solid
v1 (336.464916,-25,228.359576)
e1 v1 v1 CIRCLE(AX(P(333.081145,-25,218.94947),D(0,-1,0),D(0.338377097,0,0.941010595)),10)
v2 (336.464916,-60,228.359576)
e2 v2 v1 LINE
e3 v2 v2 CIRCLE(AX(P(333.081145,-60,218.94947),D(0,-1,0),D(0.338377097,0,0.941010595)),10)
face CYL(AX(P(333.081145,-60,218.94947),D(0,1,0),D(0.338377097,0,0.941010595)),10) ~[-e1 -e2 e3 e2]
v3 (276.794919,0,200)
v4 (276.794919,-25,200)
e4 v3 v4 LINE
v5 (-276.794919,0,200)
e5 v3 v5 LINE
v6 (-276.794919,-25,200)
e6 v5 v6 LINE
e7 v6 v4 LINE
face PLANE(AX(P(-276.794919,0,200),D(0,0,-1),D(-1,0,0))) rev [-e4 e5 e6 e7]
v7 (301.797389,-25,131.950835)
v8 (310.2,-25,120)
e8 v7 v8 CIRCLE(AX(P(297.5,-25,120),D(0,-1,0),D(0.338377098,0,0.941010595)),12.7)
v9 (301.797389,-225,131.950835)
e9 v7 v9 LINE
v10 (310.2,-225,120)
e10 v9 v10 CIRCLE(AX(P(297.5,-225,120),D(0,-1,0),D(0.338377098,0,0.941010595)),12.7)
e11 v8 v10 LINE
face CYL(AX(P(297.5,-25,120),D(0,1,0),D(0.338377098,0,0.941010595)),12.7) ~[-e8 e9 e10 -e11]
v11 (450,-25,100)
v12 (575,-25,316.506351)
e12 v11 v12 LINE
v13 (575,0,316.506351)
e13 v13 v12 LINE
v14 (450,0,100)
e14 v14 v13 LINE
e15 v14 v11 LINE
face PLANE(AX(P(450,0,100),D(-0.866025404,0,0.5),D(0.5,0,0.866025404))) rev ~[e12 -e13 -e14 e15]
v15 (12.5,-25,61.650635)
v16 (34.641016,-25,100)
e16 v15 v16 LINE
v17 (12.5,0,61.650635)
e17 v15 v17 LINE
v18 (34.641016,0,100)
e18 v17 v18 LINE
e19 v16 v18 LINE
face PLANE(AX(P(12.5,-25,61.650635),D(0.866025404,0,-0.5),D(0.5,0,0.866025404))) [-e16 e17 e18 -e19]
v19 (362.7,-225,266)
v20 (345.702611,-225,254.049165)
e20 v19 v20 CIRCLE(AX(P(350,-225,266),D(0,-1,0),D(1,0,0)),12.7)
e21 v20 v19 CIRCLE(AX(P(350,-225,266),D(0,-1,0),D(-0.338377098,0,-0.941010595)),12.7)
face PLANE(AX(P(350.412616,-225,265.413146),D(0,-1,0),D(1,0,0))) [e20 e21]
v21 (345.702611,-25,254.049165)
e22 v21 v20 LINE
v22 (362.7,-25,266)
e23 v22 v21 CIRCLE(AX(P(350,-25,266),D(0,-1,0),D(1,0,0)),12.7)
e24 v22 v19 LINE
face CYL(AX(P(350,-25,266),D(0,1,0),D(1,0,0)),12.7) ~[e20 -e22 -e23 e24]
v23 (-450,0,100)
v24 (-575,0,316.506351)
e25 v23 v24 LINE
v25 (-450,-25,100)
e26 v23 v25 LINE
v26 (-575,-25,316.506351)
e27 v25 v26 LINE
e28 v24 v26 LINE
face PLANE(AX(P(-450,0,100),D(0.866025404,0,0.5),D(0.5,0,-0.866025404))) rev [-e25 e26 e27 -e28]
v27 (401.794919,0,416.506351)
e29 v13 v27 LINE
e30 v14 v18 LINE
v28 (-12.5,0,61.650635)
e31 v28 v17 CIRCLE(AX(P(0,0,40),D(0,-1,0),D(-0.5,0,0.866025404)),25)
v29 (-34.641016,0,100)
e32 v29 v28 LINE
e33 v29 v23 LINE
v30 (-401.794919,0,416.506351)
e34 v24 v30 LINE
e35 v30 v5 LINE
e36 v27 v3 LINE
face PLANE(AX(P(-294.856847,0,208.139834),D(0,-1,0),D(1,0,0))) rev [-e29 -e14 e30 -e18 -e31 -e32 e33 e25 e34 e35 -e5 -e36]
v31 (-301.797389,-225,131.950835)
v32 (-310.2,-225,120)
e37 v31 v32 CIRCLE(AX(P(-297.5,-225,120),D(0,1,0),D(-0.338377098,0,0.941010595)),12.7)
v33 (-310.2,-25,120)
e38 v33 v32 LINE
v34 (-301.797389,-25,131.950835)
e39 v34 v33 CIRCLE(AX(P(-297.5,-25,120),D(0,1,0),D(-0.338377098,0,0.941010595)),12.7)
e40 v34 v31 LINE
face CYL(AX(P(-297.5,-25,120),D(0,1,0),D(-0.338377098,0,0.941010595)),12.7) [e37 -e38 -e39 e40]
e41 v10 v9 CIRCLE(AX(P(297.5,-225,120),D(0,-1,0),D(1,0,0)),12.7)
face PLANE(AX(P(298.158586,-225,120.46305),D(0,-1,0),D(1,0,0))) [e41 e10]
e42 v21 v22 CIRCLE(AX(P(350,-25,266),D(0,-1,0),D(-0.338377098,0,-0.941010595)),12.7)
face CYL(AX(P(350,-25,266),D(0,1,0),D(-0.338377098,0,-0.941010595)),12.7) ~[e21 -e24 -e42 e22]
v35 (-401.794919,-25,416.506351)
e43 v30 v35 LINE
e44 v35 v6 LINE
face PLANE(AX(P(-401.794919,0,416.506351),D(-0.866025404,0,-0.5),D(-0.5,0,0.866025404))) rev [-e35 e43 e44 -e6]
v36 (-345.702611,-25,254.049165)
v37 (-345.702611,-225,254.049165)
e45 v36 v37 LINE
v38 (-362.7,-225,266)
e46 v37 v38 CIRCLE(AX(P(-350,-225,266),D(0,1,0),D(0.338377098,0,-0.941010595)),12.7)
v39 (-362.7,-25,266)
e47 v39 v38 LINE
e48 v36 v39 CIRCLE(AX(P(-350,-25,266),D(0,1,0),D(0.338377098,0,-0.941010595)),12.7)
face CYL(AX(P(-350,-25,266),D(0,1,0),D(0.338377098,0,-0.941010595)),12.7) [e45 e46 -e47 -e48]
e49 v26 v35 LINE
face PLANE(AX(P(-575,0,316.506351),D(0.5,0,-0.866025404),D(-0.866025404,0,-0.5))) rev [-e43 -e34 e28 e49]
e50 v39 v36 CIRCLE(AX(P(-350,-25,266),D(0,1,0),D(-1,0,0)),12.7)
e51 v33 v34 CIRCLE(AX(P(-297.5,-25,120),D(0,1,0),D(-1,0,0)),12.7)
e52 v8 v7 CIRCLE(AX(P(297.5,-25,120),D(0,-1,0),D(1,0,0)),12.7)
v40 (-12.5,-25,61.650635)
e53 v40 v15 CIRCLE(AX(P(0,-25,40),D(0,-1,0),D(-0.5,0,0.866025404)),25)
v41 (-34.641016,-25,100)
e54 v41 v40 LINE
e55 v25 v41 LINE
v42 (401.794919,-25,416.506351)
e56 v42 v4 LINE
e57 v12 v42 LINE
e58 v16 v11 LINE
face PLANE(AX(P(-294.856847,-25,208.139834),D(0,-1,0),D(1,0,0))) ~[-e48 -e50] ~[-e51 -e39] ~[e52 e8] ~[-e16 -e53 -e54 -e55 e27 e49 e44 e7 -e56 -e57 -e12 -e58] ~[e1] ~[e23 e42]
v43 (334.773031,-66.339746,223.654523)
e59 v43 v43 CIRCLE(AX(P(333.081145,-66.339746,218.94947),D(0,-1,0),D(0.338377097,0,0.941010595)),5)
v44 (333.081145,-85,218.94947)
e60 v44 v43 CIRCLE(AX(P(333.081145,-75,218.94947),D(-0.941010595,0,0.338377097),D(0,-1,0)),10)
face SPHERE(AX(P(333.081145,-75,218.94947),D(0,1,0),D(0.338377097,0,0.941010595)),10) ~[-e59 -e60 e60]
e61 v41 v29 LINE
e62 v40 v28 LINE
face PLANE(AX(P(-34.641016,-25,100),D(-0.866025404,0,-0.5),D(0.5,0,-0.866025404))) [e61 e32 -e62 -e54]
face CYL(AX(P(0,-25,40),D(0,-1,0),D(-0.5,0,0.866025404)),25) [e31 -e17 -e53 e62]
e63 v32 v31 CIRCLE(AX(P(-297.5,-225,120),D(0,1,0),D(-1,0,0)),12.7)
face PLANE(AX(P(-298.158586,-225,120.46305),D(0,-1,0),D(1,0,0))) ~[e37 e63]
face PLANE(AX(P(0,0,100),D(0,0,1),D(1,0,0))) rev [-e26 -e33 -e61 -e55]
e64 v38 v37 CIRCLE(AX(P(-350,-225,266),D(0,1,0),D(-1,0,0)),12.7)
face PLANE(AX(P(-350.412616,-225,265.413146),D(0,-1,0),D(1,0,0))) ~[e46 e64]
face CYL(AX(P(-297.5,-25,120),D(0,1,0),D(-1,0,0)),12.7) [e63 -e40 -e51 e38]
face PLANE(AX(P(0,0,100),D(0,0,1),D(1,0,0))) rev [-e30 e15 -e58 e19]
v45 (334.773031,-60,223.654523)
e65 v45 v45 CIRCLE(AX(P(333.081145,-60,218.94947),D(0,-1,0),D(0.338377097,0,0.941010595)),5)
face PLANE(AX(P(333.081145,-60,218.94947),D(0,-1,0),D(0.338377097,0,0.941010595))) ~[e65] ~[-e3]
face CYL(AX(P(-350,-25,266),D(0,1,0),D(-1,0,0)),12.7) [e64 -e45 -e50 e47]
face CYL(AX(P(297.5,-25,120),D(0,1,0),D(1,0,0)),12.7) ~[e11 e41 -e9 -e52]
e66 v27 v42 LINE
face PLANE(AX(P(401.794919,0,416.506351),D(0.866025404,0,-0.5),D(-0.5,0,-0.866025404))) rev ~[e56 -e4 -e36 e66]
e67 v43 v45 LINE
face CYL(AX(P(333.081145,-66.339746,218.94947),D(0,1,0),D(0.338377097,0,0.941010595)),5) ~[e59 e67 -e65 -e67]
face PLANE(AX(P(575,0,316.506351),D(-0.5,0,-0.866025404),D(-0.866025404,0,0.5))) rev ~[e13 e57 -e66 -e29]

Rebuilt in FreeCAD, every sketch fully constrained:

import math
import FreeCAD as App
import Part
import Sketcher

V = App.Vector
Q = App.Units.Quantity


def add_polygon(sketch, points):
    """Adds a closed chain of lines whose ends are joined by coincident constraints."""
    first, n = sketch.GeometryCount, len(points)
    for a, b in zip(points, points[1:] + points[:1]):
        sketch.addGeometry(Part.LineSegment(App.Vector(*a, 0), App.Vector(*b, 0)), False)
    for i in range(n):
        sketch.addConstraint(Sketcher.Constraint("Coincident", first + i, 2, first + (i + 1) % n, 1))

doc = App.newDocument("Part")
body = doc.addObject("PartDesign::Body", "Body")

# Sketch on XZ plane
sketch1 = body.newObject("Sketcher::SketchObject", "Sketch")
sketch1.AttachmentSupport = (doc.getObject("XZ_Plane"), [""])
sketch1.MapMode = "FlatFace"
add_polygon(sketch1, [(0, 200), (0, 100), (450, 100), (575, 317), (402, 417), (277, 200)])  # lines 0-5
sketch1.addConstraint([
    Sketcher.Constraint("Vertical", 0),
    Sketcher.Constraint("Horizontal", 1),
    Sketcher.Constraint("Horizontal", 5),
    Sketcher.Constraint("PointOnObject", 0, 2, -2),
    Sketcher.Constraint("Perpendicular", 2, 3),
    Sketcher.Constraint("Perpendicular", 3, 4),
    Sketcher.Constraint("Equal", 2, 4),
    Sketcher.Constraint("DistanceX", 1, 1, 1, 2, 450.0),
    Sketcher.Constraint("DistanceY", 0, 2, 0, 1, 100.0),
    Sketcher.Constraint("Angle", 2, Q("60 deg")),
    Sketcher.Constraint("Distance", 2, 250.0),
    Sketcher.Constraint("DistanceY", -1, 1, 0, 2, 100.0),
])
pad1 = body.newObject("PartDesign::Pad", "Pad")
pad1.Profile = sketch1
pad1.Length = 25

# Sketch on XZ plane
sketch2 = body.newObject("Sketcher::SketchObject", "Sketch001")
sketch2.AttachmentSupport = (doc.getObject("XZ_Plane"), [""])
sketch2.MapMode = "FlatFace"
sketch2.AttachmentOffset = App.Placement(V(0, 0, 25), App.Rotation())
sketch2.addGeometry([
    Part.ArcOfCircle(Part.Circle(V(350, 266, 0), V(0, 0, 1), 13), math.radians(-110), math.radians(0)),
    Part.ArcOfCircle(Part.Circle(V(350, 266, 0), V(0, 0, 1), 13), math.radians(0), math.radians(250)),
    Part.ArcOfCircle(Part.Circle(V(298, 120, 0), V(0, 0, 1), 13), math.radians(0), math.radians(70)),
    Part.ArcOfCircle(Part.Circle(V(298, 120, 0), V(0, 0, 1), 13), math.radians(70), math.radians(360)),
], False)
sketch2.addConstraint([
    Sketcher.Constraint("Tangent", 0, 1, 1, 2),
    Sketcher.Constraint("Coincident", 1, 1, 0, 2),
    Sketcher.Constraint("Tangent", 2, 1, 3, 2),
    Sketcher.Constraint("Coincident", 3, 1, 2, 2),
    Sketcher.Constraint("Equal", 1, 2),
    Sketcher.Constraint("Horizontal", 0, 3, 1, 1),
    Sketcher.Constraint("Horizontal", 3, 3, 2, 1),
    Sketcher.Constraint("Radius", 0, 12.7),
    Sketcher.Constraint("DistanceX", -1, 1, 0, 3, 350.0),
    Sketcher.Constraint("DistanceY", -1, 1, 0, 3, 266.0),
    Sketcher.Constraint("DistanceY", -1, 1, 2, 3, 120.0),
    Sketcher.Constraint("DistanceX", -1, 1, 2, 3, 297.5),
    Sketcher.Constraint("DistanceX", -1, 1, 0, 1, 345.702611),
    Sketcher.Constraint("DistanceX", -1, 1, 3, 1, 301.797389),
])
pad2 = body.newObject("PartDesign::Pad", "Pad001")
pad2.Profile = sketch2
pad2.Length = 200
body2 = doc.addObject("PartDesign::Body", "Body001")
doc.recompute()

body2.BaseFeature = body
doc.recompute()

mirroring = doc.addObject("Part::Mirroring", "Mirroring")
mirroring.Source = body
mirroring.Base = V(0, 0, 0)
mirroring.Normal = V(1, 0, 0)
body3 = doc.addObject("PartDesign::Body", "Body002")
body3.BaseFeature = mirroring
boolean = body2.newObject("PartDesign::Boolean", "Boolean")
boolean.Type = "Fuse"
boolean.addObjects([body3])
doc.recompute()

# Sketch on XZ plane
sketch3 = body2.newObject("Sketcher::SketchObject", "Sketch002")
sketch3.AttachmentSupport = (doc.getObject("XZ_Plane001"), [""])
sketch3.MapMode = "FlatFace"
sketch3.AttachmentOffset = App.Placement(V(0, 0, 25), App.Rotation())
sketch3.addGeometry([
    Part.LineSegment(V(-35, 100, 0), V(-12, 62, 0)),
    Part.ArcOfCircle(Part.Circle(V(0, 40, 0), V(0, 0, 1), 25), math.radians(120), math.radians(420)),
    Part.LineSegment(V(12, 62, 0), V(35, 100, 0)),
    Part.LineSegment(V(35, 100, 0), V(-35, 100, 0)),
], False)
sketch3.addConstraint([
    Sketcher.Constraint("Coincident", 0, 2, 1, 1),
    Sketcher.Constraint("Coincident", 1, 2, 2, 1),
    Sketcher.Constraint("Coincident", 2, 2, 3, 1),
    Sketcher.Constraint("Coincident", 3, 2, 0, 1),
    Sketcher.Constraint("Horizontal", 3),
    Sketcher.Constraint("Symmetric", 0, 2, 1, 2, -2),
    Sketcher.Constraint("Equal", 0, 2),
    Sketcher.Constraint("Radius", 1, 25.0),
    Sketcher.Constraint("Angle", 0, Q("-60 deg")),
    Sketcher.Constraint("DistanceY", -1, 1, 1, 3, 40.0),
    Sketcher.Constraint("DistanceY", -1, 1, 2, 2, 100.0),
    Sketcher.Constraint("DistanceX", 0, 2, 1, 2, 25.0),
])
pad3 = body2.newObject("PartDesign::Pad", "Pad002")
pad3.Profile = sketch3
pad3.Length = 25
pad3.Reversed = True

# Sketch on an angled plane
sketch4 = body2.newObject("Sketcher::SketchObject", "Sketch003")
sketch4.Placement = App.Placement(V(225.226558, 0, -80.989002), App.Rotation(V(0, -1, 0), V(0.338377097, 0, 0.941010595), V(-0.941010595, 0, 0.338377097), "ZXY"))
sketch4.addGeometry([
    Part.LineSegment(V(25, 328.7, 0), V(25, 318.7, 0)),  # 0
    Part.LineSegment(V(25, 318.7, 0), V(85, 318.7, 0)),  # 1
    Part.ArcOfCircle(Part.Circle(V(75, 318.7, 0), V(0, 0, 1), 10), math.radians(0), math.radians(150)),  # 2
    Part.LineSegment(V(66.3, 323.7, 0), V(60, 323.7, 0)),  # 3
    Part.LineSegment(V(60, 323.7, 0), V(60, 328.7, 0)),  # 4
    Part.LineSegment(V(60, 328.7, 0), V(25, 328.7, 0)),  # 5
], False)
sketch4.addGeometry(Part.LineSegment(V(25, 318.7, 0), V(85, 318.7, 0)), True)  # axis
sketch4.addConstraint([
    Sketcher.Constraint("Coincident", 0, 2, 1, 1),
    Sketcher.Constraint("Coincident", 1, 2, 2, 1),
    Sketcher.Constraint("Coincident", 2, 2, 3, 1),
    Sketcher.Constraint("Coincident", 3, 2, 4, 1),
    Sketcher.Constraint("Coincident", 4, 2, 5, 1),
    Sketcher.Constraint("Coincident", 5, 2, 0, 1),
    Sketcher.Constraint("Vertical", 0),
    Sketcher.Constraint("Horizontal", 1),
    Sketcher.Constraint("Horizontal", 3),
    Sketcher.Constraint("Vertical", 4),
    Sketcher.Constraint("Horizontal", 5),
    Sketcher.Constraint("Horizontal", 6),
    Sketcher.Constraint("Coincident", 6, 1, 0, 2),
    Sketcher.Constraint("Horizontal", 2, 3, 0, 2),
    Sketcher.Constraint("Equal", 1, 6),
    Sketcher.Constraint("Radius", 2, 10.0),
    Sketcher.Constraint("DistanceX", 1, 1, 1, 2, 60.0),
    Sketcher.Constraint("DistanceX", 5, 2, 5, 1, 35.0),
    Sketcher.Constraint("DistanceY", 0, 2, 0, 1, 10.0),
    Sketcher.Constraint("DistanceY", 4, 1, 4, 2, 5.0),
    Sketcher.Constraint("DistanceX", -1, 1, 2, 3, 75.0),
    Sketcher.Constraint("DistanceY", -1, 1, 2, 3, 318.740802),
])
revolution = body2.newObject("PartDesign::Revolution", "Revolution")
revolution.Profile = sketch4
revolution.ReferenceAxis = (sketch4, ["Axis0"])
revolution.Angle = 360
mirroring.Visibility = False

doc.recompute()
